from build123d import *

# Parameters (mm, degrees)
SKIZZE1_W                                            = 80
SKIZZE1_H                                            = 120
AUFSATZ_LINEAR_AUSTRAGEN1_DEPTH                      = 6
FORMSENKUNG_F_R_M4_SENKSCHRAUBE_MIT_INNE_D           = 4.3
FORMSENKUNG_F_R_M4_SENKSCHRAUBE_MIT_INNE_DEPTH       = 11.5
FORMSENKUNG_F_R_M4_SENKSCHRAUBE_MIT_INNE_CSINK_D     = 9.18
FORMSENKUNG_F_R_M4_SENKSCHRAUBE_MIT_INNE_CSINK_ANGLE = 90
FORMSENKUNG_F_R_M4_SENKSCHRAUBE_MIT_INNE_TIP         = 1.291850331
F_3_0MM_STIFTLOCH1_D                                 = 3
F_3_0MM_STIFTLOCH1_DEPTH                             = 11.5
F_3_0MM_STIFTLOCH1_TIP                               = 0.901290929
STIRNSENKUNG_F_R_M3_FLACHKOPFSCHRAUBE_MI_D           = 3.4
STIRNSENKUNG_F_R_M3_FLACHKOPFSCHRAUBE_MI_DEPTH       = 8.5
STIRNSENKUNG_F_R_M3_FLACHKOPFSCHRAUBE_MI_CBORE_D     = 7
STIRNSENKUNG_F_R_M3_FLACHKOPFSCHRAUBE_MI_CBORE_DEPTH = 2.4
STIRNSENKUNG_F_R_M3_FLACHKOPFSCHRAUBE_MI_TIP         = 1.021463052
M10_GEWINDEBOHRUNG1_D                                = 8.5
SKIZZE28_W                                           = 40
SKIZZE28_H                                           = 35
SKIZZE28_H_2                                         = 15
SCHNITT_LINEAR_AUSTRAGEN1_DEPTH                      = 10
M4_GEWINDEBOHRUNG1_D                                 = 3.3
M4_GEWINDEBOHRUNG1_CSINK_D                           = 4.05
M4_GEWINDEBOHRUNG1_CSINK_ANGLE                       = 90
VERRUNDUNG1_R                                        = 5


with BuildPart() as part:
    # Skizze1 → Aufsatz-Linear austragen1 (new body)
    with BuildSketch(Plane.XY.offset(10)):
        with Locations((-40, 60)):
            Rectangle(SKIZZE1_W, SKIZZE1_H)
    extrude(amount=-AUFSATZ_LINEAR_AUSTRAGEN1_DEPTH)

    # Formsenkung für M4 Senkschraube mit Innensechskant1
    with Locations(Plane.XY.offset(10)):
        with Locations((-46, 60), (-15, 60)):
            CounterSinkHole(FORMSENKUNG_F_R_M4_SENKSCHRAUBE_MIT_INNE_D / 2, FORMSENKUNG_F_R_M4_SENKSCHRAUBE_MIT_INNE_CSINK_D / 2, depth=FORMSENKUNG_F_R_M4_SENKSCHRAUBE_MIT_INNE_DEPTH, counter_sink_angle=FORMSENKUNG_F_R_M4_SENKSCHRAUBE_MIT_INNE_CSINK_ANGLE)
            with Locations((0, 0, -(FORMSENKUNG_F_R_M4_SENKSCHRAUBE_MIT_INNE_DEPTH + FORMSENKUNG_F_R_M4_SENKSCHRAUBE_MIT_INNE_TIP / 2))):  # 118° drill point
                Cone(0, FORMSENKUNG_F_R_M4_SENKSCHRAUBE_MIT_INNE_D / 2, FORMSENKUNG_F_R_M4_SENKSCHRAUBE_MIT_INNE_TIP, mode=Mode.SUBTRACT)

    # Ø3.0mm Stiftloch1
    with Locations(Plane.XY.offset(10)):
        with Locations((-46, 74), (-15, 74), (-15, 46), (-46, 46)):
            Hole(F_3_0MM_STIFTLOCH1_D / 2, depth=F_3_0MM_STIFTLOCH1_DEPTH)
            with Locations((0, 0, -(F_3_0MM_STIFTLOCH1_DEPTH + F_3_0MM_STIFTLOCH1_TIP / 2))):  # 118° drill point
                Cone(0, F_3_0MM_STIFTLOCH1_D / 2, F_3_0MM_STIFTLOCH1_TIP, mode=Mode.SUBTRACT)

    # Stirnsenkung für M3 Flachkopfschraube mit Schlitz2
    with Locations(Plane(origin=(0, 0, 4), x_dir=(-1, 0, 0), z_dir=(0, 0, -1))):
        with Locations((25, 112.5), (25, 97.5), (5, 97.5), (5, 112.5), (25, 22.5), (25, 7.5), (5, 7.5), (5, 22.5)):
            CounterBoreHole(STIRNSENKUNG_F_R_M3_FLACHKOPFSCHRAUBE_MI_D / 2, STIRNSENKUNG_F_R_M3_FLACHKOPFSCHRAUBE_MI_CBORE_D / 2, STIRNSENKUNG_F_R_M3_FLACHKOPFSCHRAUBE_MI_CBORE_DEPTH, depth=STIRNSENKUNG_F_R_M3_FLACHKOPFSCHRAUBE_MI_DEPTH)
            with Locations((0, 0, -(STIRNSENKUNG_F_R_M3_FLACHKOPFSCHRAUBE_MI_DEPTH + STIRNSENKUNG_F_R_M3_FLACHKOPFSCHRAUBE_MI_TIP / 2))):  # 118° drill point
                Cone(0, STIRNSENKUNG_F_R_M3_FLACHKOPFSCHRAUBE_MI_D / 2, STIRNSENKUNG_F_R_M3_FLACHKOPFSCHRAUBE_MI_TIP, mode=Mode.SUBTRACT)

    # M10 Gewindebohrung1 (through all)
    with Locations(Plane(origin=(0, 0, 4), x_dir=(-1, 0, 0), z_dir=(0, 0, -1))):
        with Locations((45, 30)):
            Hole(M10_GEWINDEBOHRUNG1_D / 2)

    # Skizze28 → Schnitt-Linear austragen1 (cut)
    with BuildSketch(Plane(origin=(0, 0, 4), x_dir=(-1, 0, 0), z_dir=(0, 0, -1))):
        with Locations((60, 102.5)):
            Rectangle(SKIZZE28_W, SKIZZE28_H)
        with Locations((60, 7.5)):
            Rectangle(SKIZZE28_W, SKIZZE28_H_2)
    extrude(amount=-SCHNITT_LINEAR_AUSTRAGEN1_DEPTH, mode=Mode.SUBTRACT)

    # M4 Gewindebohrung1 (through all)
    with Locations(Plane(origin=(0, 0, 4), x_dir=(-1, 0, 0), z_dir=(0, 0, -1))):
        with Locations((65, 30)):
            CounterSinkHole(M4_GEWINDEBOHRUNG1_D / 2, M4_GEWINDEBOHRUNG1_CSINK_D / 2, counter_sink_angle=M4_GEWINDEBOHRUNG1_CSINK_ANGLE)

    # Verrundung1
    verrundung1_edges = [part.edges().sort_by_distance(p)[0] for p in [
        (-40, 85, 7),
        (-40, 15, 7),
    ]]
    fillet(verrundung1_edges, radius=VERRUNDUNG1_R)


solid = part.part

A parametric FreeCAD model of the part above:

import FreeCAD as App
import Part
import Sketcher
Q = App.Units.Quantity


def edges_at(feature, points):
    """Names of the edges that pass closest to the given points."""
    edges = feature.Shape.Edges
    near = lambda p: min(range(len(edges)), key=lambda i: edges[i].distToShape(Part.Vertex(*p))[0])
    return sorted({f"Edge{near(p) + 1}" for p in points})


def add_polygon(sketch, points):
    """Adds a closed chain of lines whose ends are joined by coincident constraints."""
    first, n = sketch.GeometryCount, len(points)
    for a, b in zip(points, points[1:] + points[:1]):
        sketch.addGeometry(Part.LineSegment(App.Vector(*a, 0), App.Vector(*b, 0)), False)
    for i in range(n):
        sketch.addConstraint(Sketcher.Constraint("Coincident", first + i, 2, first + (i + 1) % n, 1))

doc = App.newDocument("Part")
params = doc.addObject("Spreadsheet::Sheet", "Params")
for row, (alias, value) in enumerate([
    ("sketch1_width", "80 mm"),
    ("sketch1_height", "120 mm"),
    ("pad1_length", "6 mm"),
    ("sketch2_diameter", "4.3 mm"),
    ("hole_diameter", "4.3 mm"),
    ("hole_depth", "11.5 mm"),
    ("hole_csink_diameter", "9.18 mm"),
    ("sketch3_diameter", "3 mm"),
    ("hole2_diameter", "3 mm"),
    ("hole2_depth", "11.5 mm"),
    ("sketch4_diameter", "3.4 mm"),
    ("hole3_diameter", "3.4 mm"),
    ("hole3_depth", "8.5 mm"),
    ("hole3_cbore_diameter", "7 mm"),
    ("hole3_cbore_depth", "2.4 mm"),
    ("sketch5_diameter", "8.5 mm"),
    ("hole4_diameter", "8.5 mm"),
    ("sketch6_width", "40 mm"),
    ("sketch6_height", "35 mm"),
    ("sketch6_height2", "15 mm"),
    ("pocket1_length", "10 mm"),
    ("sketch7_diameter", "3.3 mm"),
    ("hole5_diameter", "3.3 mm"),
    ("hole5_csink_diameter", "4.05 mm"),
    ("fillet_radius", "5 mm"),
], start=1):
    params.set(f"A{row}", alias)
    params.set(f"B{row}", "=" + value)
    params.setAlias(f"B{row}", alias)

body = doc.addObject("PartDesign::Body", "Body")

sketch1 = doc.addObject("Sketcher::SketchObject", "Sketch")
body.addObject(sketch1)
sketch1.AttachmentSupport = (doc.XY_Plane, [""])
sketch1.MapMode = "FlatFace"
sketch1.AttachmentOffset = App.Placement(App.Vector(0, 0, 10), App.Rotation())
add_polygon(sketch1, [(-80, 120), (-80, 0), (0, 0), (0, 120)])
sketch1.addConstraint(Sketcher.Constraint("Vertical", 0))
sketch1.addConstraint(Sketcher.Constraint("Horizontal", 1))
sketch1.addConstraint(Sketcher.Constraint("Vertical", 2))
sketch1.addConstraint(Sketcher.Constraint("Horizontal", 3))
sketch1.addConstraint(Sketcher.Constraint("Coincident", 1, 2, -1, 1))
sketch1.addConstraint(Sketcher.Constraint("DistanceX", 1, 1, 1, 2, Q("80 mm")))
sketch1.addConstraint(Sketcher.Constraint("DistanceY", 0, 2, 0, 1, Q("120 mm")))
sketch1.setExpression("Constraints[9]", "Params.sketch1_width")
sketch1.setExpression("Constraints[10]", "Params.sketch1_height")
pad1 = doc.addObject("PartDesign::Pad", "Pad")
body.addObject(pad1)
pad1.Profile = sketch1
pad1.setExpression("Length", "Params.pad1_length")
pad1.Reversed = True

sketch2 = doc.addObject("Sketcher::SketchObject", "Sketch001")
body.addObject(sketch2)
sketch2.AttachmentSupport = (doc.XY_Plane, [""])
sketch2.MapMode = "FlatFace"
sketch2.AttachmentOffset = App.Placement(App.Vector(0, 0, 10), App.Rotation())
sketch2.addGeometry(Part.Circle(App.Vector(-46, 60, 0), App.Vector(0, 0, 1), 2.1), False)
sketch2.addGeometry(Part.Circle(App.Vector(-15, 60, 0), App.Vector(0, 0, 1), 2.1), False)
sketch2.addConstraint(Sketcher.Constraint("Equal", 0, 1))
sketch2.addConstraint(Sketcher.Constraint("Horizontal", 0, 3, 1, 3))
sketch2.addConstraint(Sketcher.Constraint("Diameter", 0, Q("4.3 mm")))
sketch2.addConstraint(Sketcher.Constraint("DistanceX", 0, 3, -1, 1, Q("46 mm")))
sketch2.addConstraint(Sketcher.Constraint("DistanceY", -1, 1, 0, 3, Q("60 mm")))
sketch2.addConstraint(Sketcher.Constraint("DistanceX", 1, 3, -1, 1, Q("15 mm")))
sketch2.setExpression("Constraints[2]", "Params.sketch2_diameter")
doc.recompute()
hole = doc.addObject("PartDesign::Hole", "Hole")
body.addObject(hole)
hole.Profile = sketch2
hole.ThreadType = "None"
hole.setExpression("Diameter", "Params.hole_diameter")
hole.DepthType = "Dimension"
hole.setExpression("Depth", "Params.hole_depth")
hole.DrillPoint = "Angled"
hole.DrillPointAngle = 118
hole.HoleCutType = "Countersink"
hole.setExpression("HoleCutDiameter", "Params.hole_csink_diameter")
hole.HoleCutCountersinkAngle = 90

sketch3 = doc.addObject("Sketcher::SketchObject", "Sketch002")
body.addObject(sketch3)
sketch3.AttachmentSupport = (doc.XY_Plane, [""])
sketch3.MapMode = "FlatFace"
sketch3.AttachmentOffset = App.Placement(App.Vector(0, 0, 10), App.Rotation())
sketch3.addGeometry(Part.Circle(App.Vector(-46, 74, 0), App.Vector(0, 0, 1), 1.5), False)
sketch3.addGeometry(Part.Circle(App.Vector(-15, 74, 0), App.Vector(0, 0, 1), 1.5), False)
sketch3.addGeometry(Part.Circle(App.Vector(-15, 46, 0), App.Vector(0, 0, 1), 1.5), False)
sketch3.addGeometry(Part.Circle(App.Vector(-46, 46, 0), App.Vector(0, 0, 1), 1.5), False)
sketch3.addConstraint(Sketcher.Constraint("Equal", 0, 1))
sketch3.addConstraint(Sketcher.Constraint("Equal", 1, 2))
sketch3.addConstraint(Sketcher.Constraint("Equal", 2, 3))
sketch3.addConstraint(Sketcher.Constraint("Horizontal", 0, 3, 1, 3))
sketch3.addConstraint(Sketcher.Constraint("Horizontal", 2, 3, 3, 3))
sketch3.addConstraint(Sketcher.Constraint("Vertical", 1, 3, 2, 3))
sketch3.addConstraint(Sketcher.Constraint("Vertical", 0, 3, 3, 3))
sketch3.addConstraint(Sketcher.Constraint("Diameter", 0, Q("3 mm")))
sketch3.addConstraint(Sketcher.Constraint("DistanceX", 0, 3, -1, 1, Q("46 mm")))
sketch3.addConstraint(Sketcher.Constraint("DistanceY", -1, 1, 0, 3, Q("74 mm")))
sketch3.addConstraint(Sketcher.Constraint("DistanceX", 1, 3, -1, 1, Q("15 mm")))
sketch3.addConstraint(Sketcher.Constraint("DistanceY", -1, 1, 2, 3, Q("46 mm")))
sketch3.setExpression("Constraints[7]", "Params.sketch3_diameter")
doc.recompute()
hole2 = doc.addObject("PartDesign::Hole", "Hole001")
body.addObject(hole2)
hole2.Profile = sketch3
hole2.ThreadType = "None"
hole2.setExpression("Diameter", "Params.hole2_diameter")
hole2.DepthType = "Dimension"
hole2.setExpression("Depth", "Params.hole2_depth")
hole2.DrillPoint = "Angled"
hole2.DrillPointAngle = 118

sketch4 = doc.addObject("Sketcher::SketchObject", "Sketch003")
body.addObject(sketch4)
sketch4.AttachmentSupport = (doc.XY_Plane, [""])
sketch4.MapMode = "FlatFace"
sketch4.AttachmentOffset = App.Placement(App.Vector(0, 0, 4), App.Rotation())
sketch4.addGeometry(Part.Circle(App.Vector(-25, 112.5, 0), App.Vector(0, 0, 1), 1.7), False)
sketch4.addGeometry(Part.Circle(App.Vector(-25, 97.5, 0), App.Vector(0, 0, 1), 1.7), False)
sketch4.addGeometry(Part.Circle(App.Vector(-5, 97.5, 0), App.Vector(0, 0, 1), 1.7), False)
sketch4.addGeometry(Part.Circle(App.Vector(-5, 112.5, 0), App.Vector(0, 0, 1), 1.7), False)
sketch4.addGeometry(Part.Circle(App.Vector(-25, 22.5, 0), App.Vector(0, 0, 1), 1.7), False)
sketch4.addGeometry(Part.Circle(App.Vector(-25, 7.5, 0), App.Vector(0, 0, 1), 1.7), False)
sketch4.addGeometry(Part.Circle(App.Vector(-5, 7.5, 0), App.Vector(0, 0, 1), 1.7), False)
sketch4.addGeometry(Part.Circle(App.Vector(-5, 22.5, 0), App.Vector(0, 0, 1), 1.7), False)
sketch4.addConstraint(Sketcher.Constraint("Equal", 0, 1))
sketch4.addConstraint(Sketcher.Constraint("Equal", 1, 2))
sketch4.addConstraint(Sketcher.Constraint("Equal", 2, 3))
sketch4.addConstraint(Sketcher.Constraint("Equal", 3, 4))
sketch4.addConstraint(Sketcher.Constraint("Equal", 4, 5))
sketch4.addConstraint(Sketcher.Constraint("Equal", 5, 6))
sketch4.addConstraint(Sketcher.Constraint("Equal", 6, 7))
sketch4.addConstraint(Sketcher.Constraint("Horizontal", 1, 3, 2, 3))
sketch4.addConstraint(Sketcher.Constraint("Horizontal", 0, 3, 3, 3))
sketch4.addConstraint(Sketcher.Constraint("Horizontal", 5, 3, 6, 3))
sketch4.addConstraint(Sketcher.Constraint("Horizontal", 4, 3, 7, 3))
sketch4.addConstraint(Sketcher.Constraint("Vertical", 0, 3, 1, 3))
sketch4.addConstraint(Sketcher.Constraint("Vertical", 2, 3, 3, 3))
sketch4.addConstraint(Sketcher.Constraint("Vertical", 1, 3, 4, 3))
sketch4.addConstraint(Sketcher.Constraint("Vertical", 4, 3, 5, 3))
sketch4.addConstraint(Sketcher.Constraint("Vertical", 3, 3, 6, 3))
sketch4.addConstraint(Sketcher.Constraint("Vertical", 6, 3, 7, 3))
sketch4.addConstraint(Sketcher.Constraint("Diameter", 0, Q("3.4 mm")))
sketch4.addConstraint(Sketcher.Constraint("DistanceX", 0, 3, -1, 1, Q("25 mm")))
sketch4.addConstraint(Sketcher.Constraint("DistanceX", 2, 3, -1, 1, Q("5 mm")))
sketch4.addConstraint(Sketcher.Constraint("DistanceY", 1, 3, 0, 3, Q("15 mm")))
sketch4.addConstraint(Sketcher.Constraint("DistanceY", 4, 3, 1, 3, Q("75 mm")))
sketch4.addConstraint(Sketcher.Constraint("DistanceY", 5, 3, 4, 3, Q("15 mm")))
sketch4.addConstraint(Sketcher.Constraint("DistanceY", -1, 1, 0, 3, Q("112.5 mm")))
sketch4.setExpression("Constraints[17]", "Params.sketch4_diameter")
doc.recompute()
hole3 = doc.addObject("PartDesign::Hole", "Hole002")
body.addObject(hole3)
hole3.Profile = sketch4
hole3.ThreadType = "None"
hole3.setExpression("Diameter", "Params.hole3_diameter")
hole3.DepthType = "Dimension"
hole3.setExpression("Depth", "Params.hole3_depth")
hole3.DrillPoint = "Angled"
hole3.DrillPointAngle = 118
hole3.HoleCutType = "Counterbore"
hole3.setExpression("HoleCutDiameter", "Params.hole3_cbore_diameter")
hole3.setExpression("HoleCutDepth", "Params.hole3_cbore_depth")
hole3.Reversed = True

sketch5 = doc.addObject("Sketcher::SketchObject", "Sketch004")
body.addObject(sketch5)
sketch5.AttachmentSupport = (doc.XY_Plane, [""])
sketch5.MapMode = "FlatFace"
sketch5.AttachmentOffset = App.Placement(App.Vector(0, 0, 4), App.Rotation())
sketch5.addGeometry(Part.Circle(App.Vector(-45, 30, 0), App.Vector(0, 0, 1), 4.2), False)
sketch5.addConstraint(Sketcher.Constraint("Diameter", 0, Q("8.5 mm")))
sketch5.addConstraint(Sketcher.Constraint("DistanceX", 0, 3, -1, 1, Q("45 mm")))
sketch5.addConstraint(Sketcher.Constraint("DistanceY", -1, 1, 0, 3, Q("30 mm")))
sketch5.setExpression("Constraints[0]", "Params.sketch5_diameter")
doc.recompute()
hole4 = doc.addObject("PartDesign::Hole", "Hole003")
body.addObject(hole4)
hole4.Profile = sketch5
hole4.ThreadType = "None"
hole4.setExpression("Diameter", "Params.hole4_diameter")
hole4.DepthType = "ThroughAll"
hole4.Reversed = True

sketch6 = doc.addObject("Sketcher::SketchObject", "Sketch005")
body.addObject(sketch6)
sketch6.AttachmentSupport = (doc.XY_Plane, [""])
sketch6.MapMode = "FlatFace"
sketch6.AttachmentOffset = App.Placement(App.Vector(0, 0, 4), App.Rotation())
add_polygon(sketch6, [(-40, 120), (-40, 85), (-80, 85), (-80, 120)])
add_polygon(sketch6, [(-40, 15), (-40, 0), (-80, 0), (-80, 15)])
sketch6.addConstraint(Sketcher.Constraint("Vertical", 0))
sketch6.addConstraint(Sketcher.Constraint("Horizontal", 1))
sketch6.addConstraint(Sketcher.Constraint("Vertical", 2))
sketch6.addConstraint(Sketcher.Constraint("Horizontal", 3))
sketch6.addConstraint(Sketcher.Constraint("Vertical", 4))
sketch6.addConstraint(Sketcher.Constraint("Horizontal", 5))
sketch6.addConstraint(Sketcher.Constraint("Vertical", 6))
sketch6.addConstraint(Sketcher.Constraint("Horizontal", 7))
sketch6.addConstraint(Sketcher.Constraint("PointOnObject", 4, 2, -1))
sketch6.addConstraint(Sketcher.Constraint("Vertical", 3, 2, 4, 2))
sketch6.addConstraint(Sketcher.Constraint("Vertical", 2, 2, 5, 2))
sketch6.addConstraint(Sketcher.Constraint("DistanceX", 1, 2, 1, 1, Q("40 mm")))
sketch6.addConstraint(Sketcher.Constraint("DistanceY", 0, 2, 0, 1, Q("35 mm")))
sketch6.addConstraint(Sketcher.Constraint("DistanceY", 4, 2, 4, 1, Q("15 mm")))
sketch6.addConstraint(Sketcher.Constraint("DistanceX", 0, 2, -1, 1, Q("40 mm")))
sketch6.addConstraint(Sketcher.Constraint("DistanceY", -1, 1, 0, 2, Q("85 mm")))
sketch6.setExpression("Constraints[19]", "Params.sketch6_width")
sketch6.setExpression("Constraints[20]", "Params.sketch6_height")
sketch6.setExpression("Constraints[21]", "Params.sketch6_height2")
pocket1 = doc.addObject("PartDesign::Pocket", "Pocket")
body.addObject(pocket1)
pocket1.Profile = sketch6
pocket1.setExpression("Length", "Params.pocket1_length")
pocket1.Reversed = True

sketch7 = doc.addObject("Sketcher::SketchObject", "Sketch006")
body.addObject(sketch7)
sketch7.AttachmentSupport = (doc.XY_Plane, [""])
sketch7.MapMode = "FlatFace"
sketch7.AttachmentOffset = App.Placement(App.Vector(0, 0, 4), App.Rotation())
sketch7.addGeometry(Part.Circle(App.Vector(-65, 30, 0), App.Vector(0, 0, 1), 1.6), False)
sketch7.addConstraint(Sketcher.Constraint("Diameter", 0, Q("3.3 mm")))
sketch7.addConstraint(Sketcher.Constraint("DistanceX", 0, 3, -1, 1, Q("65 mm")))
sketch7.addConstraint(Sketcher.Constraint("DistanceY", -1, 1, 0, 3, Q("30 mm")))
sketch7.setExpression("Constraints[0]", "Params.sketch7_diameter")
doc.recompute()
hole5 = doc.addObject("PartDesign::Hole", "Hole004")
body.addObject(hole5)
hole5.Profile = sketch7
hole5.ThreadType = "None"
hole5.setExpression("Diameter", "Params.hole5_diameter")
hole5.DepthType = "ThroughAll"
hole5.HoleCutType = "Countersink"
hole5.setExpression("HoleCutDiameter", "Params.hole5_csink_diameter")
hole5.HoleCutCountersinkAngle = 90
hole5.Reversed = True
doc.recompute()

fillet = doc.addObject("PartDesign::Fillet", "Fillet")
body.addObject(fillet)
fillet.Base = (hole5, edges_at(hole5, [(-40, 85, 7), (-40, 15, 7)]))
fillet.setExpression("Radius", "Params.fillet_radius")

doc.recompute()
